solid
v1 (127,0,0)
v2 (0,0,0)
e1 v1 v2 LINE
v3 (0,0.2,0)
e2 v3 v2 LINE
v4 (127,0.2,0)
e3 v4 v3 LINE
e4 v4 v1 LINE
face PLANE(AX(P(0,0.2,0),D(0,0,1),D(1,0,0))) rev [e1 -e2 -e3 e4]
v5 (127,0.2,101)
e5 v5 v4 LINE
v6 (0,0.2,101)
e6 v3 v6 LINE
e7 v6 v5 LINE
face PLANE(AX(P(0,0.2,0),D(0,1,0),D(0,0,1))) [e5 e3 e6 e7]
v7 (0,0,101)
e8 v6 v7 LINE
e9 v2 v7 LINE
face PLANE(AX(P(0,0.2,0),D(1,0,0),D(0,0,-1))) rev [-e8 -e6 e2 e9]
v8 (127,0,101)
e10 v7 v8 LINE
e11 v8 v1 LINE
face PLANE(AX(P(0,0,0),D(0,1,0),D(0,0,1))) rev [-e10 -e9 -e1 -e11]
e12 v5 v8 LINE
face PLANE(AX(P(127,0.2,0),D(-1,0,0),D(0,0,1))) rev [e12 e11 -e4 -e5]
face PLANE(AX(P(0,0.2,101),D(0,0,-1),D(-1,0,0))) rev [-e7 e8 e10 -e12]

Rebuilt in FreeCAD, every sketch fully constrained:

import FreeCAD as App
import Part
import Sketcher
Q = App.Units.Quantity


def add_polygon(sketch, points):
    """Adds a closed chain of lines whose ends are joined by coincident constraints."""
    first, n = sketch.GeometryCount, len(points)
    for a, b in zip(points, points[1:] + points[:1]):
        sketch.addGeometry(Part.LineSegment(App.Vector(*a, 0), App.Vector(*b, 0)), False)
    for i in range(n):
        sketch.addConstraint(Sketcher.Constraint("Coincident", first + i, 2, first + (i + 1) % n, 1))

doc = App.newDocument("Part")
body = doc.addObject("PartDesign::Body", "Body")

sketch1 = body.newObject("Sketcher::SketchObject", "Sketch")
sketch1.AttachmentSupport = (doc.getObject("XZ_Plane"), [""])
sketch1.MapMode = "FlatFace"
add_polygon(sketch1, [(0, 0), (0, 101), (127, 101), (127, 0)])
sketch1.addConstraint([
    Sketcher.Constraint("Vertical", 0),
    Sketcher.Constraint("Horizontal", 1),
    Sketcher.Constraint("Vertical", 2),
    Sketcher.Constraint("Horizontal", 3),
    Sketcher.Constraint("Coincident", 3, 2, -1, 1),
    Sketcher.Constraint("DistanceX", 1, 1, 1, 2, Q("127 mm")),
    Sketcher.Constraint("DistanceY", 0, 1, 0, 2, Q("101 mm")),
])
pad1 = body.newObject("PartDesign::Pad", "Pad")
pad1.Profile = sketch1
pad1.Length = 0.2
pad1.Reversed = True

doc.recompute()
